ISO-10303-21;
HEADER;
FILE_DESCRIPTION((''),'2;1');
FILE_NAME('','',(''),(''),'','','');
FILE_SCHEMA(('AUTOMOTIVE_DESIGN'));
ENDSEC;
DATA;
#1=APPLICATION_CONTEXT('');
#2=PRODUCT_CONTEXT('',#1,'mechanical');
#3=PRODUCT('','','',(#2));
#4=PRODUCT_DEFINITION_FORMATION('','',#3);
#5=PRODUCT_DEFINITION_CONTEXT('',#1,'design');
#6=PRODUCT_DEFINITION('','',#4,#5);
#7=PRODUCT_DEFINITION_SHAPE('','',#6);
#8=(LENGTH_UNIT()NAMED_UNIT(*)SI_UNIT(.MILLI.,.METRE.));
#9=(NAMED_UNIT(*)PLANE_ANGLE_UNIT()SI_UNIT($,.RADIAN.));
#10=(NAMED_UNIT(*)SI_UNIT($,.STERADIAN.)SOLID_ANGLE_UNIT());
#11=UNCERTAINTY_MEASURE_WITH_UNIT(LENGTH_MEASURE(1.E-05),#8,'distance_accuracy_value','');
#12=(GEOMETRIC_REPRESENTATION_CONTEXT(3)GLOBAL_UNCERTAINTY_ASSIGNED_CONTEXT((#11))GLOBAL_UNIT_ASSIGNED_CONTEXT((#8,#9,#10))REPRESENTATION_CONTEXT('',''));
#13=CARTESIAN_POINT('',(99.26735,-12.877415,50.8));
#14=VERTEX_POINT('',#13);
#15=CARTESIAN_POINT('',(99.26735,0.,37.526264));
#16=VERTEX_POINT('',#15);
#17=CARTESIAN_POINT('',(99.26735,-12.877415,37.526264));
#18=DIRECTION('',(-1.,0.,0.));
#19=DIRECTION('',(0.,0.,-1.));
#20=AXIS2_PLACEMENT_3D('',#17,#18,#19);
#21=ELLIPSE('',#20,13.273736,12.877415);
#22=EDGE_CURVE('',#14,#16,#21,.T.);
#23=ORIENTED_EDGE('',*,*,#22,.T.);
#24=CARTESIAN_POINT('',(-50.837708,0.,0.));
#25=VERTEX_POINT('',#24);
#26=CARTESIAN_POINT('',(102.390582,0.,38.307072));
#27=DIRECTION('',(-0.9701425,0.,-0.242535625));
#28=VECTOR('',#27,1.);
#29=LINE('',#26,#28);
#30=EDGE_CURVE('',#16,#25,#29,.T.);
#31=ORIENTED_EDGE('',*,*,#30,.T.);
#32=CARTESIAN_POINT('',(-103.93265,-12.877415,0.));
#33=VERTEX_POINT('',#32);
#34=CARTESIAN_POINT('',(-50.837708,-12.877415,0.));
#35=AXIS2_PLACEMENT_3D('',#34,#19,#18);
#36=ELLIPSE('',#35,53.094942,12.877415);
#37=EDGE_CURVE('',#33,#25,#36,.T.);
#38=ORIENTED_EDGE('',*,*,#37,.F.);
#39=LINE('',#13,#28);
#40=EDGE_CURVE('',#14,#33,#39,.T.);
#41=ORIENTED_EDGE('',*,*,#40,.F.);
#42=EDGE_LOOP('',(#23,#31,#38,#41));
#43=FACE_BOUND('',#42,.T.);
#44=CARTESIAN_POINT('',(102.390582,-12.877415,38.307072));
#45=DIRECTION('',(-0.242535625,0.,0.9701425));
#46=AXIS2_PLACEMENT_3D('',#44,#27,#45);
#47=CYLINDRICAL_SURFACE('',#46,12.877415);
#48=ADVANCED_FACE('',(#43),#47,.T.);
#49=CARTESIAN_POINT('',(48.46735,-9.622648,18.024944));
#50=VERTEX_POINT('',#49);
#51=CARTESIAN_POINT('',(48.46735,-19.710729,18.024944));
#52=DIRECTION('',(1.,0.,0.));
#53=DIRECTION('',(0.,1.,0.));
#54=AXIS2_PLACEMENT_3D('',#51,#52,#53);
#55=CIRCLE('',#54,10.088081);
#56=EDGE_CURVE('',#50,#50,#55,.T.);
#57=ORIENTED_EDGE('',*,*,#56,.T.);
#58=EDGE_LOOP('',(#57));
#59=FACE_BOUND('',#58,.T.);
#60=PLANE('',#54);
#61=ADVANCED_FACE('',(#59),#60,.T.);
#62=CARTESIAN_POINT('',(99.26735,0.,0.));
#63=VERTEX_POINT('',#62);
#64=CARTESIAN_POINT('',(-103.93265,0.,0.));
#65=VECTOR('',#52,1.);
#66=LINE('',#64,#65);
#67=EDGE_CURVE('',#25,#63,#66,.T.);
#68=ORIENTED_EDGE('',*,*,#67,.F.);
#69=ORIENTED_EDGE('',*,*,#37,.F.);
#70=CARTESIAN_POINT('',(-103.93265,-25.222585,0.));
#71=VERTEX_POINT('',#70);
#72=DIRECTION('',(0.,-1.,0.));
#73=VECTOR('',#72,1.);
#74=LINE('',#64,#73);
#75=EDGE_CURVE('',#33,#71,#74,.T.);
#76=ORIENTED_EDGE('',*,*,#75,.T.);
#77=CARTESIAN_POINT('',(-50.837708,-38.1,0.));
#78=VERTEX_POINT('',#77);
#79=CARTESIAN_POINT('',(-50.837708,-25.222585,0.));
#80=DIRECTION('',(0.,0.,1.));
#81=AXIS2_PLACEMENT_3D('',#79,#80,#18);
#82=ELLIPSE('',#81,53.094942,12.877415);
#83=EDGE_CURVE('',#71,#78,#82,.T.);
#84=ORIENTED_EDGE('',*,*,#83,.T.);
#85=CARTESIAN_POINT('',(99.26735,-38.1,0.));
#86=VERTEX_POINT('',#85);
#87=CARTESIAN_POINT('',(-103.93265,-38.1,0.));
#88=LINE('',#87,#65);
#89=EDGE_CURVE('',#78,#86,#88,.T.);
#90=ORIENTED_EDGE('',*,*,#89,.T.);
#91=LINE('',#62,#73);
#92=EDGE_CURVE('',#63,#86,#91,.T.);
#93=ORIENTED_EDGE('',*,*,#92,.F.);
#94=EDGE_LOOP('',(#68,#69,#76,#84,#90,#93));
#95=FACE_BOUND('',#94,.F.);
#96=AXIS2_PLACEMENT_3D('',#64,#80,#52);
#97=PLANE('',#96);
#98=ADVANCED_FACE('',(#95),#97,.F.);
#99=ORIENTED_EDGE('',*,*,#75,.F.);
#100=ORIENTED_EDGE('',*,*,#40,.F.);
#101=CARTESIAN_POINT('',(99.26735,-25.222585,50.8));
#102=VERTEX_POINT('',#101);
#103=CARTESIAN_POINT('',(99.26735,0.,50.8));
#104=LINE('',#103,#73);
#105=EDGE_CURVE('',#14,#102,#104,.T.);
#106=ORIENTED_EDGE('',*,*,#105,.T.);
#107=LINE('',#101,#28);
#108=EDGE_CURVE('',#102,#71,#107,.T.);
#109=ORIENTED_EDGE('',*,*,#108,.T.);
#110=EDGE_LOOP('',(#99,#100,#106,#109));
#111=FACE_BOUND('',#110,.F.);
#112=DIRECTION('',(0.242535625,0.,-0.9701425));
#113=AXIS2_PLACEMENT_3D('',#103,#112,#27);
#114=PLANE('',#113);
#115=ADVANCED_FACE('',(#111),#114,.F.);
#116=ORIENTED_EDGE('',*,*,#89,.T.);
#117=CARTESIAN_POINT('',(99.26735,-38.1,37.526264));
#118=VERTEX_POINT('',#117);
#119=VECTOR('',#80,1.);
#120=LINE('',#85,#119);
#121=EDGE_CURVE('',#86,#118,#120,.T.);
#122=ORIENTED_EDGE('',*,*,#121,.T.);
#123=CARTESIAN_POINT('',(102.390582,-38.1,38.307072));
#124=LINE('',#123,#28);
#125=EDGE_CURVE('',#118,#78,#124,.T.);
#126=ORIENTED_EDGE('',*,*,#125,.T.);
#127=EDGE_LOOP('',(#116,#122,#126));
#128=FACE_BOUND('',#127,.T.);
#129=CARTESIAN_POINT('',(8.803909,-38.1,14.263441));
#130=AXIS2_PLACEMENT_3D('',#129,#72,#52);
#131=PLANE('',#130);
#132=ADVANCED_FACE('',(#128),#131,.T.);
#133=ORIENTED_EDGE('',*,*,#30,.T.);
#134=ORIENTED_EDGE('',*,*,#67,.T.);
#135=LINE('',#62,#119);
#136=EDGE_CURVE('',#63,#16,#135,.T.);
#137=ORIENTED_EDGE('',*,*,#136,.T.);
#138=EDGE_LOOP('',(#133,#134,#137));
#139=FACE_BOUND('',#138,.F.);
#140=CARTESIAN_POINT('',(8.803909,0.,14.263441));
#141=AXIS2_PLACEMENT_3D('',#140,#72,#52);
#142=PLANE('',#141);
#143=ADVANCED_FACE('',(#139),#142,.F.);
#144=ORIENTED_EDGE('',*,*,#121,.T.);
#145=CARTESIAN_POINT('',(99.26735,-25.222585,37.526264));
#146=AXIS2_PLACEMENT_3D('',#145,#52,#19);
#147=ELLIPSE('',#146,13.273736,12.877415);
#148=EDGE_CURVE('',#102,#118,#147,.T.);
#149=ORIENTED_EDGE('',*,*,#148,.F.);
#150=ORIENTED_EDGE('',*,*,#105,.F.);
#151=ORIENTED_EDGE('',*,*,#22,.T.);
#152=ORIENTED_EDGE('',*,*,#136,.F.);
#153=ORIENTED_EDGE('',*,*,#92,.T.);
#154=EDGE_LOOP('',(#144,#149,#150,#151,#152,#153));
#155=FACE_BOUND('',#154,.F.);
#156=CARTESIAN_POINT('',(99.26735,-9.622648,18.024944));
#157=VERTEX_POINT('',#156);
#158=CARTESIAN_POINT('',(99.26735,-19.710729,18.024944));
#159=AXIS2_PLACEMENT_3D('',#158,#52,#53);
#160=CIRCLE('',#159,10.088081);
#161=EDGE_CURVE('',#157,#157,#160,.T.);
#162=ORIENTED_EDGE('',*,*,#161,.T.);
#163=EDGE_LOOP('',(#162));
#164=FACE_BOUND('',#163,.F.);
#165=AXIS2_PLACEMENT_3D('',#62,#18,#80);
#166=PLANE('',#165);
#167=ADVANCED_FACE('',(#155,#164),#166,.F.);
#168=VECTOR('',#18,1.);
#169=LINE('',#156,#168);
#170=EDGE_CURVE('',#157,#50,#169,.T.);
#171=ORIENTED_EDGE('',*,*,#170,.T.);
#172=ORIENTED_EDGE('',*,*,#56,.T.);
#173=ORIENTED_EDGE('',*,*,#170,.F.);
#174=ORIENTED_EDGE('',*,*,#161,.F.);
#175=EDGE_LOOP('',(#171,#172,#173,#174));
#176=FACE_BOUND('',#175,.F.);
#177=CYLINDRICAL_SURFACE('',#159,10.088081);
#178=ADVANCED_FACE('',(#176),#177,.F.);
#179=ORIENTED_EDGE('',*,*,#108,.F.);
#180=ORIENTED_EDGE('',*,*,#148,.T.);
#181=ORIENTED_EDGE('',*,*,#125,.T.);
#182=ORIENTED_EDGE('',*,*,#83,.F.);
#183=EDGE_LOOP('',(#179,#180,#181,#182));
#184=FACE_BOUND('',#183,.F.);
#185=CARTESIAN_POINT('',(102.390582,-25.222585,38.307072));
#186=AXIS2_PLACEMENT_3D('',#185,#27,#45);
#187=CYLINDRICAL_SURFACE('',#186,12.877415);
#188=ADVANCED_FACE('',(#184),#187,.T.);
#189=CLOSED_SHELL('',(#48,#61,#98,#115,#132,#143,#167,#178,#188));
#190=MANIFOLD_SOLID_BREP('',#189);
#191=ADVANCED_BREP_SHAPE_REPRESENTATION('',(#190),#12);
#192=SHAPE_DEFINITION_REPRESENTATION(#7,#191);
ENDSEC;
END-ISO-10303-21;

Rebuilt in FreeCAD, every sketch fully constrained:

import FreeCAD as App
import Part
import Sketcher
Q = App.Units.Quantity


def edges_at(feature, points):
    """Names of the edges that pass closest to the given points."""
    edges = feature.Shape.Edges
    near = lambda p: min(range(len(edges)), key=lambda i: edges[i].distToShape(Part.Vertex(*p))[0])
    return sorted({f"Edge{near(p) + 1}" for p in points})

doc = App.newDocument("Part")
body = doc.addObject("PartDesign::Body", "Body")

# Sketch on XZ plane
sketch1 = body.newObject("Sketcher::SketchObject", "Sketch")
sketch1.AttachmentSupport = (doc.getObject("XZ_Plane"), [""])
sketch1.MapMode = "FlatFace"
sketch1.addGeometry(Part.LineSegment(App.Vector(-104, 0, 0), App.Vector(99, 0, 0)), False)
sketch1.addGeometry(Part.LineSegment(App.Vector(99, 0, 0), App.Vector(99, 51, 0)), False)
sketch1.addGeometry(Part.LineSegment(App.Vector(99, 51, 0), App.Vector(-104, 0, 0)), False)
sketch1.addConstraint(Sketcher.Constraint("Coincident", 0, 2, 1, 1))
sketch1.addConstraint(Sketcher.Constraint("Coincident", 1, 2, 2, 1))
sketch1.addConstraint(Sketcher.Constraint("Coincident", 2, 2, 0, 1))
sketch1.addConstraint(Sketcher.Constraint("Horizontal", 0))
sketch1.addConstraint(Sketcher.Constraint("Vertical", 1))
sketch1.addConstraint(Sketcher.Constraint("PointOnObject", 0, 2, -1))
sketch1.addConstraint(Sketcher.Constraint("DistanceX", 0, 1, 0, 2, Q("8 in")))
sketch1.addConstraint(Sketcher.Constraint("DistanceY", 1, 1, 1, 2, Q("2 in")))
sketch1.addConstraint(Sketcher.Constraint("DistanceX", -1, 1, 0, 2, 99.26735))
pad1 = body.newObject("PartDesign::Pad", "Pad")
pad1.Profile = sketch1
pad1.Length = Q("1.5 in")
doc.recompute()

fillet = body.newObject("PartDesign::Fillet", "Fillet")
fillet.Base = (pad1, edges_at(pad1, [(-2.333, 0, 25.4), (-2.333, -38.1, 25.4)]))
fillet.Radius = 12.877415

# Sketch on YZ plane
sketch2 = body.newObject("Sketcher::SketchObject", "Sketch001")
sketch2.AttachmentSupport = (doc.getObject("YZ_Plane"), [""])
sketch2.MapMode = "FlatFace"
sketch2.AttachmentOffset = App.Placement(App.Vector(0, 0, 99.26735), App.Rotation())
sketch2.addGeometry(Part.Circle(App.Vector(-20, 18, 0), App.Vector(0, 0, 1), 10), False)
sketch2.addConstraint(Sketcher.Constraint("Diameter", 0, 20.176162))
sketch2.addConstraint(Sketcher.Constraint("DistanceX", 0, 3, -1, 1, 19.710729))
sketch2.addConstraint(Sketcher.Constraint("DistanceY", -1, 1, 0, 3, 18.024944))
pocket1 = body.newObject("PartDesign::Pocket", "Pocket")
pocket1.Profile = sketch2
pocket1.Length = Q("2 in")

doc.recompute()
